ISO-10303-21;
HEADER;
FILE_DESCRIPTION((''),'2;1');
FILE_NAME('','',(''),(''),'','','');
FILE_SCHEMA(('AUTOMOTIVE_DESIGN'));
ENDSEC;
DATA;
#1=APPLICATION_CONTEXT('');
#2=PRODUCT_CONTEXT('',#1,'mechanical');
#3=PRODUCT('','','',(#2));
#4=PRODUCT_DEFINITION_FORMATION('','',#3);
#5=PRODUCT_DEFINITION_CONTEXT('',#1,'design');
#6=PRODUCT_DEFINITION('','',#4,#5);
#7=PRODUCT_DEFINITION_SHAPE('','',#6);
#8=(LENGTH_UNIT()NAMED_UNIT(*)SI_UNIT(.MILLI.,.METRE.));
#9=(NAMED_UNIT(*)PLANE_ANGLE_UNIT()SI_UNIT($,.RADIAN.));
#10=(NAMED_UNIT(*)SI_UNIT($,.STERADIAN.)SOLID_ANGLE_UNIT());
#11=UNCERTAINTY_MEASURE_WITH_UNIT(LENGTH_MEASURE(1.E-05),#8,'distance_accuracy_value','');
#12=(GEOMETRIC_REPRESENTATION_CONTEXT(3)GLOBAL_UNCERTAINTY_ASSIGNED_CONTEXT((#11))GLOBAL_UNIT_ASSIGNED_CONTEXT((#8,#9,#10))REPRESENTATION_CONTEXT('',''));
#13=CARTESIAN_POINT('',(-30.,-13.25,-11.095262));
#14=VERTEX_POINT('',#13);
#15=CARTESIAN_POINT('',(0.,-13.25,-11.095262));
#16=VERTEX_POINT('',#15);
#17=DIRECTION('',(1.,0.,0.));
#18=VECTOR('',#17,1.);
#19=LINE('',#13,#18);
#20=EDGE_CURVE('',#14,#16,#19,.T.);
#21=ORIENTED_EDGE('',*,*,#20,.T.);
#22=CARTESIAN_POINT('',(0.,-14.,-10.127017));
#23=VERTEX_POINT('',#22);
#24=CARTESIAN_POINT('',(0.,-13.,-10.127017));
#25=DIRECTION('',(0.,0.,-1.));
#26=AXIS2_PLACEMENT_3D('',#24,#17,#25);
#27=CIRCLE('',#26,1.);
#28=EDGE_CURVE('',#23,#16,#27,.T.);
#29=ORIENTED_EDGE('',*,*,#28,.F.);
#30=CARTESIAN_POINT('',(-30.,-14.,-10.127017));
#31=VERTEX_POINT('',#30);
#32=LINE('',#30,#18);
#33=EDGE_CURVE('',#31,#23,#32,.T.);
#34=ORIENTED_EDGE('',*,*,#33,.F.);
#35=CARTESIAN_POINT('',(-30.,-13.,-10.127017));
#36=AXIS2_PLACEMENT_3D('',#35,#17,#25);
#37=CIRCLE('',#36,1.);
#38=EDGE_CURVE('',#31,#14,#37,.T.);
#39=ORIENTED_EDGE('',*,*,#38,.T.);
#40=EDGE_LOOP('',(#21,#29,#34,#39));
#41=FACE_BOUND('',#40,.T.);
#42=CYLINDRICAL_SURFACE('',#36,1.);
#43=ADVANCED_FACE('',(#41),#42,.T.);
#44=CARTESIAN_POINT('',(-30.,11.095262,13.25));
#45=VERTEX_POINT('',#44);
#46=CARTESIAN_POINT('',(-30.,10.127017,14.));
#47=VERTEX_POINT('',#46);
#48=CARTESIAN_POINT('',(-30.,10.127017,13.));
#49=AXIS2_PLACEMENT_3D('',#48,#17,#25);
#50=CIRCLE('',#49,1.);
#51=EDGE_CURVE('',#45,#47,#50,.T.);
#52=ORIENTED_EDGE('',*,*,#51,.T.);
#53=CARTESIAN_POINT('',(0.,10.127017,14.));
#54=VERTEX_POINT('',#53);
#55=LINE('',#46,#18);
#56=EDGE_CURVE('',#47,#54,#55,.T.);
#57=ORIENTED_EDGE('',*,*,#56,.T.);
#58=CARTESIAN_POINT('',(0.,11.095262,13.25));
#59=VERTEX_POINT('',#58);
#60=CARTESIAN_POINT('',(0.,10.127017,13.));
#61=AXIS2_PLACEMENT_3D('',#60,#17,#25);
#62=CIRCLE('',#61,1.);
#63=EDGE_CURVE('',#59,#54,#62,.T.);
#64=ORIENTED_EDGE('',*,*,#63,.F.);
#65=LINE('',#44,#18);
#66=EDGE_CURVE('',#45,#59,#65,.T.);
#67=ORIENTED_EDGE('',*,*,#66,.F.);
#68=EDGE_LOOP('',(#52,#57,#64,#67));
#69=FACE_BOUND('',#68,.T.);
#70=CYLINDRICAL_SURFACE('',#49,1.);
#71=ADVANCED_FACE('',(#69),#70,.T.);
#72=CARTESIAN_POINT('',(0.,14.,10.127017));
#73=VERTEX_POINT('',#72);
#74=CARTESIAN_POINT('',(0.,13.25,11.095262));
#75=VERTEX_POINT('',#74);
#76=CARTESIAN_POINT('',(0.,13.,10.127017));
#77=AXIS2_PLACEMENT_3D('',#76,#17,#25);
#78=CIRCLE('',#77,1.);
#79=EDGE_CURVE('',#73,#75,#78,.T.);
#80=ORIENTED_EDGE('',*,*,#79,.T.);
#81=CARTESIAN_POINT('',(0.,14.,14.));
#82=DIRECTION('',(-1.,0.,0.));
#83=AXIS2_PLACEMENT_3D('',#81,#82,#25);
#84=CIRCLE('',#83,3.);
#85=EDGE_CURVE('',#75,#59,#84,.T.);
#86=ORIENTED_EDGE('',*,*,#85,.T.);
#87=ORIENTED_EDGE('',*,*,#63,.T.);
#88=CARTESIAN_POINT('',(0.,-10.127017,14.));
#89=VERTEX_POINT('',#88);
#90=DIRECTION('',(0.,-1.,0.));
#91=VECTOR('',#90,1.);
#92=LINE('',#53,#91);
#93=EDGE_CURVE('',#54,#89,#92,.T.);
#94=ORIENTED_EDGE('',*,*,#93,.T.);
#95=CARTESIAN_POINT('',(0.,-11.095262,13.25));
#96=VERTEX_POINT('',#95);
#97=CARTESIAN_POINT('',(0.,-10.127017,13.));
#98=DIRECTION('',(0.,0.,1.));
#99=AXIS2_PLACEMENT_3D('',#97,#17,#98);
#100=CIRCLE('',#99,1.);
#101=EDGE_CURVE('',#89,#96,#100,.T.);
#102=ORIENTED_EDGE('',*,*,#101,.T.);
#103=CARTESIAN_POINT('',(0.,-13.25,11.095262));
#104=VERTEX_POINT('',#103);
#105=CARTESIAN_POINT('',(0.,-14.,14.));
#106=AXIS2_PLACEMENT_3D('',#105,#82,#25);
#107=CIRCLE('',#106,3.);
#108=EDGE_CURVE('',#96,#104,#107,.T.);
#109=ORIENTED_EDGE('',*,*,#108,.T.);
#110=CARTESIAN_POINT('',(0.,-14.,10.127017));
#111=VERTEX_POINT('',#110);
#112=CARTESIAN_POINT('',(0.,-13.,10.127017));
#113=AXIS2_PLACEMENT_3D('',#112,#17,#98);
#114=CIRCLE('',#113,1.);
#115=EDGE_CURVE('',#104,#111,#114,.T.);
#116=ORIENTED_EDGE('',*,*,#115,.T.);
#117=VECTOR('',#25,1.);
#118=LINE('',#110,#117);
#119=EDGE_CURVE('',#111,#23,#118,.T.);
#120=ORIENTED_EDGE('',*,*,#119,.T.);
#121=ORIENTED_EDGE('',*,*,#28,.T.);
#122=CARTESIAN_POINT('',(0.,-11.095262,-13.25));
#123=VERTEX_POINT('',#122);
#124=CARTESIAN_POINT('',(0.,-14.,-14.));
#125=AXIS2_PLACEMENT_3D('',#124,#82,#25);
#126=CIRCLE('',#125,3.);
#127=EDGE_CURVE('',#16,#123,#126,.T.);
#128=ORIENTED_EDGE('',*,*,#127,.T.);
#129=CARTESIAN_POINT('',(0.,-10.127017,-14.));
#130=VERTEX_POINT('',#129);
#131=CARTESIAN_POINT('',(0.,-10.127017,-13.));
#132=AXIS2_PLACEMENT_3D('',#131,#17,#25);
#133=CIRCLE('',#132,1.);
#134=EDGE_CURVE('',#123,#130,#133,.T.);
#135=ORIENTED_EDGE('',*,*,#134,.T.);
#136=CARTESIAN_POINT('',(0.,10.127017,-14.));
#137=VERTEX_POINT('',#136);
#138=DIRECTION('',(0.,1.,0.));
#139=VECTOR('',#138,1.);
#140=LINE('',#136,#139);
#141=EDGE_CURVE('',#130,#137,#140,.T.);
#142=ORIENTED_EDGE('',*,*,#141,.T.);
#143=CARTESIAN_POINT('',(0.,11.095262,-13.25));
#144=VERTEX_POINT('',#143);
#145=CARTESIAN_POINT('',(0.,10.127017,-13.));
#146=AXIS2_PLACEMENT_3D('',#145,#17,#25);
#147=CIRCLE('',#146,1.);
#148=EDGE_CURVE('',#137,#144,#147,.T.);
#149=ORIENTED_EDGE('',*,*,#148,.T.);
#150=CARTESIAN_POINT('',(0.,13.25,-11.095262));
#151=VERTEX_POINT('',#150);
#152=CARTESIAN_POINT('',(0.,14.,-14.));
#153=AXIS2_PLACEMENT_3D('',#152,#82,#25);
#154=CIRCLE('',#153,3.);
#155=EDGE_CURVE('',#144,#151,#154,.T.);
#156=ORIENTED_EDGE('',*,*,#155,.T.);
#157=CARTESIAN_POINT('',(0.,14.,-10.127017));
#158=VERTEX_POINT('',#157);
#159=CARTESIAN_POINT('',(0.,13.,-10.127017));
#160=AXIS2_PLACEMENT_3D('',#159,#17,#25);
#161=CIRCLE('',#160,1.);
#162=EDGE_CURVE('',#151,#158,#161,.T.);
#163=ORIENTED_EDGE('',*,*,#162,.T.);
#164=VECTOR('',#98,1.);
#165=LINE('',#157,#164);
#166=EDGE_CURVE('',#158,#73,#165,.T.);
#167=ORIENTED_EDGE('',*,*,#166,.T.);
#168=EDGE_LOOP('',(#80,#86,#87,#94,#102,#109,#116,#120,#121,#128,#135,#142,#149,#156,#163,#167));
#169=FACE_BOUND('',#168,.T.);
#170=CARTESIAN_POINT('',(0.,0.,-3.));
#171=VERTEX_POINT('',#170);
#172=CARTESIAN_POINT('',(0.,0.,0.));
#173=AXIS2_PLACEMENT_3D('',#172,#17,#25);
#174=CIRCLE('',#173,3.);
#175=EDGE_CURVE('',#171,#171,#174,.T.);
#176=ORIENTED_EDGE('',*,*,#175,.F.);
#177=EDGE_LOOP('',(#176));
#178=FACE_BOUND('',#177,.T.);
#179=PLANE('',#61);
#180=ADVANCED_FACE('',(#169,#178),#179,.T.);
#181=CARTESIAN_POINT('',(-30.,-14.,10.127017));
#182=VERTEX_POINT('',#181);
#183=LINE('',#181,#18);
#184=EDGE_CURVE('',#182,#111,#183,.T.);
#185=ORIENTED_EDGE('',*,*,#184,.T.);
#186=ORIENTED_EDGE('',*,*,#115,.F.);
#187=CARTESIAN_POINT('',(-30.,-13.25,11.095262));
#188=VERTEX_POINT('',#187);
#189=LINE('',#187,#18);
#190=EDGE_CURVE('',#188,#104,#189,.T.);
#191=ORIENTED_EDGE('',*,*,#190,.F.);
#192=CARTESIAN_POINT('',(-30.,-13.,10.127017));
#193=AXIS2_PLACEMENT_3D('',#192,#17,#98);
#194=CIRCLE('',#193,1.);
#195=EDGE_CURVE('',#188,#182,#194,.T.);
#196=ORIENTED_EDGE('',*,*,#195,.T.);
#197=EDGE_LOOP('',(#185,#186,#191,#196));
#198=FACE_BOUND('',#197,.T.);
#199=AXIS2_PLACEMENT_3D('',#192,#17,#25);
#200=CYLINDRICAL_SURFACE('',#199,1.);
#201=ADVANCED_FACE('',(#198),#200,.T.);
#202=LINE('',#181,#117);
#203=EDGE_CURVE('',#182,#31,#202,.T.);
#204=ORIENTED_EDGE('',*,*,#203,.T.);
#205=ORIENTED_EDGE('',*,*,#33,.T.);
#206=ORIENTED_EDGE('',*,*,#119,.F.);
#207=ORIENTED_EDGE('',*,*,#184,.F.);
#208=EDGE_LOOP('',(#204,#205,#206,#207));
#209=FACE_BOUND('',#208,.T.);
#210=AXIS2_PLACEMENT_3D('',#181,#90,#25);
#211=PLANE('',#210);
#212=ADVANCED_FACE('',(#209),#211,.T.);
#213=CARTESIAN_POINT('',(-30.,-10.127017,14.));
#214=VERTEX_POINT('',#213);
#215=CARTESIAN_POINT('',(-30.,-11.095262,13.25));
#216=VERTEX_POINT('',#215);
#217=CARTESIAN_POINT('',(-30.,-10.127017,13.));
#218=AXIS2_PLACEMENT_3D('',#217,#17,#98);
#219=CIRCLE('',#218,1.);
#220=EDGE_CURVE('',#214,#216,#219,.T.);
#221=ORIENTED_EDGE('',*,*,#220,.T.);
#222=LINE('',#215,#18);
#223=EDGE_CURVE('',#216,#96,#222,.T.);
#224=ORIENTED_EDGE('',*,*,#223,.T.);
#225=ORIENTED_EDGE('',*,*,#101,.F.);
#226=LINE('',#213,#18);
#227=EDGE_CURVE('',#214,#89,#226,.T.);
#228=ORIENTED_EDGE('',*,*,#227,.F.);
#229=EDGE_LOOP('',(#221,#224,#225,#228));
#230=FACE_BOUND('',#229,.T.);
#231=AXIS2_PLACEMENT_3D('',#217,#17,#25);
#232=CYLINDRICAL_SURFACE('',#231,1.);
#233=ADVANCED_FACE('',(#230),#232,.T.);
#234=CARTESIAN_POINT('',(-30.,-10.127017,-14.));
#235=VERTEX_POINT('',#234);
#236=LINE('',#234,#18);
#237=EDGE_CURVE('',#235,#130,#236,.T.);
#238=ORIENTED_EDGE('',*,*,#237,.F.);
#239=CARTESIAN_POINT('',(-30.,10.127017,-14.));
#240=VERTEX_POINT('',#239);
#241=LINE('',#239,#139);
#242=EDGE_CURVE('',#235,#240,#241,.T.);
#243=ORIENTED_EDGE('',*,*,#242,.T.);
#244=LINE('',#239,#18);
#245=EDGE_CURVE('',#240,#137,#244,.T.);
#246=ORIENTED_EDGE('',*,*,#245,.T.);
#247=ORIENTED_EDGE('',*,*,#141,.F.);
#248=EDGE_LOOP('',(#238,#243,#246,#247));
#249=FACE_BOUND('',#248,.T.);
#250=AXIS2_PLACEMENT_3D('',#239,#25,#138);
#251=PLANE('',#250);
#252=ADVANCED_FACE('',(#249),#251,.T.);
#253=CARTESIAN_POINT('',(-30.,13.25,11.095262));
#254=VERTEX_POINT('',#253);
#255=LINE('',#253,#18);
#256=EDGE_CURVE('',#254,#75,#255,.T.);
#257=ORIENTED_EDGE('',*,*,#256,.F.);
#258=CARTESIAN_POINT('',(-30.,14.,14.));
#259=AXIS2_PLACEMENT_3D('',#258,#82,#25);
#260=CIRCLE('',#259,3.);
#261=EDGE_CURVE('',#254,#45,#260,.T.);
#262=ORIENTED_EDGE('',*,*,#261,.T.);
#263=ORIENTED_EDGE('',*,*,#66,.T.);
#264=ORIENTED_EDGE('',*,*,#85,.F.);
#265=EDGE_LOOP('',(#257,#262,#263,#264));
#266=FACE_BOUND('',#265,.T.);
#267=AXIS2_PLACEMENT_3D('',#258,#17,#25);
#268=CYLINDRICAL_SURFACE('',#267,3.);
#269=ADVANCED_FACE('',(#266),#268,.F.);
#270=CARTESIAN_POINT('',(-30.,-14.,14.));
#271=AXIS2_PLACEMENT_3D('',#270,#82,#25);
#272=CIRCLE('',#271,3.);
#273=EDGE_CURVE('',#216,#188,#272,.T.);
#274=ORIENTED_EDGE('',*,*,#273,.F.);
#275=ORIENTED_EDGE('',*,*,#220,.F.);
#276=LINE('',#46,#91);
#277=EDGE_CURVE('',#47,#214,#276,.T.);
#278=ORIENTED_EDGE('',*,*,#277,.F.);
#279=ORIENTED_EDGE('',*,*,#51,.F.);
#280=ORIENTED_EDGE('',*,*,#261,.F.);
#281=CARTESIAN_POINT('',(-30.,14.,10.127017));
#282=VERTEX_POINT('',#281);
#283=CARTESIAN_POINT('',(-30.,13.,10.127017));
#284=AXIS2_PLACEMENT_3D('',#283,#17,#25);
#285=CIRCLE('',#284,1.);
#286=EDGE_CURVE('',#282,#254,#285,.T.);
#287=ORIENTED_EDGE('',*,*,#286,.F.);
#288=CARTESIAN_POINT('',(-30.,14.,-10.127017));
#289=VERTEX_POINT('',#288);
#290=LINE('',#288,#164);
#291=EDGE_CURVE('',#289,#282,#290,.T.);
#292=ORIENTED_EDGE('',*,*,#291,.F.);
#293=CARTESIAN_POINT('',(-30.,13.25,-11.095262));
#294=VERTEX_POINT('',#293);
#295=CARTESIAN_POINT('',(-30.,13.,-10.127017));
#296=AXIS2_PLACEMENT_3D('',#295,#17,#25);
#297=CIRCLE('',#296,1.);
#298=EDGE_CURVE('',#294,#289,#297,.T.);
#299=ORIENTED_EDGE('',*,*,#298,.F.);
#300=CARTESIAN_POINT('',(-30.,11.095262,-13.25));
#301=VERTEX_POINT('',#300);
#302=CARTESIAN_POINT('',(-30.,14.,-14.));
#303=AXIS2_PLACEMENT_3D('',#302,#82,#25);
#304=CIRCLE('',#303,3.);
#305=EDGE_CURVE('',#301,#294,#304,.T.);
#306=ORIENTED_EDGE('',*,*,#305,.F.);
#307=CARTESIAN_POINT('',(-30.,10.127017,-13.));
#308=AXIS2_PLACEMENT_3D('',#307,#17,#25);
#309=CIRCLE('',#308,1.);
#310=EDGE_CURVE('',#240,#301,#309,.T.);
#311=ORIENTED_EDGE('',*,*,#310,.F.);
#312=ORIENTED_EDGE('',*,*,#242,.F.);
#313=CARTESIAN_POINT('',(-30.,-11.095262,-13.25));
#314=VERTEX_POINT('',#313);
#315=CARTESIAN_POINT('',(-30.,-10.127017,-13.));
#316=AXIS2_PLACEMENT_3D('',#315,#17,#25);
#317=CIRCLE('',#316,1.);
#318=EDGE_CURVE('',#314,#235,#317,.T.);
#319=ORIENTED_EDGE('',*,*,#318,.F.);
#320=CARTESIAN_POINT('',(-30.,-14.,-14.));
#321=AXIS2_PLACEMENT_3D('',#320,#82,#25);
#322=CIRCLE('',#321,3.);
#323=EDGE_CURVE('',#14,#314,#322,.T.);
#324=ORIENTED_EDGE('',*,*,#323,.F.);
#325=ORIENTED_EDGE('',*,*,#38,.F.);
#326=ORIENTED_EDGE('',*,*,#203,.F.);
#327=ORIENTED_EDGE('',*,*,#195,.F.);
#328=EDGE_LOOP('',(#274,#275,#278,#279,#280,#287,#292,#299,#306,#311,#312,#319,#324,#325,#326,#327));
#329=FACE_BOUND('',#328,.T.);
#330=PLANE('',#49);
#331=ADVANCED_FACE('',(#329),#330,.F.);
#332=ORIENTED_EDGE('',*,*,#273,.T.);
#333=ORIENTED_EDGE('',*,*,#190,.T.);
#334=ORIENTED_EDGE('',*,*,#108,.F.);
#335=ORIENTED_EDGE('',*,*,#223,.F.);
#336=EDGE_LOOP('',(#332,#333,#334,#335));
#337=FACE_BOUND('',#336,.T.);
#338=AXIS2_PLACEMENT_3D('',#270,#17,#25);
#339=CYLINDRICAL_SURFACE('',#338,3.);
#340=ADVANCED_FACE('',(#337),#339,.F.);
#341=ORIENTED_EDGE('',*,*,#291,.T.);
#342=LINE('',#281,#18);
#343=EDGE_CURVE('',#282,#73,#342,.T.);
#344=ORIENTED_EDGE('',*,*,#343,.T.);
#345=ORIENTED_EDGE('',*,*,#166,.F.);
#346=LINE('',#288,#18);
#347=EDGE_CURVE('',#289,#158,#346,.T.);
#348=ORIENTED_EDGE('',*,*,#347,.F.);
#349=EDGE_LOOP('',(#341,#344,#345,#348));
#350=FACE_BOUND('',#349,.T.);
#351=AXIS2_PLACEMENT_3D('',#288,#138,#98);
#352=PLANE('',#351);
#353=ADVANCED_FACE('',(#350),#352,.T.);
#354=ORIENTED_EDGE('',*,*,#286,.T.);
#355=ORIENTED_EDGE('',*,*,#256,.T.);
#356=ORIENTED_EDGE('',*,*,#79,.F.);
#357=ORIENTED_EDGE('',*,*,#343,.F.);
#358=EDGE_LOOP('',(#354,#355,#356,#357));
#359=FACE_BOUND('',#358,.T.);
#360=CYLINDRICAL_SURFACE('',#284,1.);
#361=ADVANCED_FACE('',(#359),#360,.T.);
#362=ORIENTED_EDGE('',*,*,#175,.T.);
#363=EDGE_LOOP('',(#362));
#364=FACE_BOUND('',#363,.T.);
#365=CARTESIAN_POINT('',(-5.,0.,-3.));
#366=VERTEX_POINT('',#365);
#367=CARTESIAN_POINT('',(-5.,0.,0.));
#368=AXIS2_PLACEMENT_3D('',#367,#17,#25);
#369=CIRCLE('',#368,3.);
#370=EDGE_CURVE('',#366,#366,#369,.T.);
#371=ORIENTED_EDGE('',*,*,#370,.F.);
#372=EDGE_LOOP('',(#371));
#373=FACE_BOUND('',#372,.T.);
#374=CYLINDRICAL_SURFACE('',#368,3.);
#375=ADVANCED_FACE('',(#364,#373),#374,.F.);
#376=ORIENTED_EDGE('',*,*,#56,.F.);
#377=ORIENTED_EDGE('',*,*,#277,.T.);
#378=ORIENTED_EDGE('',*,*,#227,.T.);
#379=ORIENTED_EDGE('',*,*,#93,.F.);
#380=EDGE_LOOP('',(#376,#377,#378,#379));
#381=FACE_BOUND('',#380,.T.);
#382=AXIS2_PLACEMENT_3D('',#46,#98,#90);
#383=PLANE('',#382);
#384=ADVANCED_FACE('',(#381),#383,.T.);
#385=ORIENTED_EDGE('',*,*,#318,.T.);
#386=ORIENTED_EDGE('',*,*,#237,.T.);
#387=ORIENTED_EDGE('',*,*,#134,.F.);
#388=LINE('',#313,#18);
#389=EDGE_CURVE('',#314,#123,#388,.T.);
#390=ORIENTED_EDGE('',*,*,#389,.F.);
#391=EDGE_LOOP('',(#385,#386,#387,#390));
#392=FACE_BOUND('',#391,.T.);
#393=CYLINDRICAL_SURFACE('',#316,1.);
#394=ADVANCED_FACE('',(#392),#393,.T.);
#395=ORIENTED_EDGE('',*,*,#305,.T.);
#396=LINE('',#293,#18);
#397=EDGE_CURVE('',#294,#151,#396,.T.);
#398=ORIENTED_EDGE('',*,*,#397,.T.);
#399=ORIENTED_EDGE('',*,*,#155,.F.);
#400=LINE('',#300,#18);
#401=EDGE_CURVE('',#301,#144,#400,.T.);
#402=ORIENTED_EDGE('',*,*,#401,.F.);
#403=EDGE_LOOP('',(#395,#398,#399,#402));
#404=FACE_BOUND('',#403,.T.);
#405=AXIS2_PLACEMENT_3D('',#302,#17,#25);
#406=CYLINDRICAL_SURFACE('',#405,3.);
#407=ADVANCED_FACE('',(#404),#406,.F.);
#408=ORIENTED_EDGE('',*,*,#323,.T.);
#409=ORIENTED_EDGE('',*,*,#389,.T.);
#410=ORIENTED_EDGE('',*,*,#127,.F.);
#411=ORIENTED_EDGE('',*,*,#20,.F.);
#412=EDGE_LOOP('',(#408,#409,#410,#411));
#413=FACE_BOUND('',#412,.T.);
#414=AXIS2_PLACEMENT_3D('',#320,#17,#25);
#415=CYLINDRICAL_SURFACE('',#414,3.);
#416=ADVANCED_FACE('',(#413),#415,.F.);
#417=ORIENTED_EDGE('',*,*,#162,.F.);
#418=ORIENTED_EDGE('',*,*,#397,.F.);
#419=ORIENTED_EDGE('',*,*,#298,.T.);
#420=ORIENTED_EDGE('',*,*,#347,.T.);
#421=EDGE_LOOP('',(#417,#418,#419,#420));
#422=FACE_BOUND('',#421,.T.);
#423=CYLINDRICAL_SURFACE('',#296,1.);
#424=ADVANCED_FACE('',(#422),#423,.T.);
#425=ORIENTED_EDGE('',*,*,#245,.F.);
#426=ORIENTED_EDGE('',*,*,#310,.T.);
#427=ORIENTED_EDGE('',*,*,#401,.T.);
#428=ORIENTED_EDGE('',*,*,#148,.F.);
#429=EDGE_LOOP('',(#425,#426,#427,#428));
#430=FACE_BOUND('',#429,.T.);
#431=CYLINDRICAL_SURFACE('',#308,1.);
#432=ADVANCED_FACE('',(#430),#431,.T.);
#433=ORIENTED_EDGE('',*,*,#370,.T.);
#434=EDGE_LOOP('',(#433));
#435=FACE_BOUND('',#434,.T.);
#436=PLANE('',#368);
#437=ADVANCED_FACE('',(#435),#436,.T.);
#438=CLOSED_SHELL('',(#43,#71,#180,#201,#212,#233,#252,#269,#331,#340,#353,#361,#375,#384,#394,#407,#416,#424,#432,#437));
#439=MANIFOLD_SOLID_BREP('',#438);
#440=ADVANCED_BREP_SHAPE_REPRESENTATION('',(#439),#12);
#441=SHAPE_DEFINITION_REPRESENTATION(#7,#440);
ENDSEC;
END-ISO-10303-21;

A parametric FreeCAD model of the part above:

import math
import FreeCAD as App
import Part
import Sketcher
from FreeCAD import Vector
Q = App.Units.Quantity

doc = App.newDocument("Part")
params = doc.addObject("Spreadsheet::Sheet", "Params")
for row, (alias, value) in enumerate([
    ("sketch1_radius", "1 mm"),
    ("sketch1_radius2", "3 mm"),
    ("pad1_length", "30 mm"),
    ("sketch2_diameter", "6 mm"),
    ("pocket1_length", "5 mm"),
], start=1):
    params.set(f"A{row}", alias)
    params.set(f"B{row}", "=" + value)
    params.setAlias(f"B{row}", alias)

body = doc.addObject("PartDesign::Body", "Body")

# Sketch on YZ plane
sketch1 = body.newObject("Sketcher::SketchObject", "Sketch")
sketch1.AttachmentSupport = (doc.getObject("YZ_Plane"), [""])
sketch1.MapMode = "FlatFace"
sketch1.addGeometry([
    Part.LineSegment(Vector(10.1, 14, 0), Vector(-10.1, 14, 0)),  # 0
    Part.ArcOfCircle(Part.Circle(Vector(-10.1, 13, 0), Vector(0, 0, 1), 1), math.radians(90), math.radians(166)),  # 1
    Part.ArcOfCircle(Part.Circle(Vector(-14, 14, 0), Vector(0, 0, 1), 3), math.radians(-76), math.radians(-14)),  # 2
    Part.ArcOfCircle(Part.Circle(Vector(-13, 10.1, 0), Vector(0, 0, 1), 1), math.radians(104), math.radians(180)),  # 3
    Part.LineSegment(Vector(-14, 10.1, 0), Vector(-14, -10.1, 0)),  # 4
    Part.ArcOfCircle(Part.Circle(Vector(-13, -10.1, 0), Vector(0, 0, 1), 1), math.radians(-180), math.radians(-104)),  # 5
    Part.ArcOfCircle(Part.Circle(Vector(-14, -14, 0), Vector(0, 0, 1), 3), math.radians(14), math.radians(76)),  # 6
    Part.ArcOfCircle(Part.Circle(Vector(-10.1, -13, 0), Vector(0, 0, 1), 1), math.radians(-166), math.radians(-90)),  # 7
    Part.LineSegment(Vector(-10.1, -14, 0), Vector(10.1, -14, 0)),  # 8
    Part.ArcOfCircle(Part.Circle(Vector(10.1, -13, 0), Vector(0, 0, 1), 1), math.radians(-90), math.radians(-14)),  # 9
    Part.ArcOfCircle(Part.Circle(Vector(14, -14, 0), Vector(0, 0, 1), 3), math.radians(104), math.radians(166)),  # 10
    Part.ArcOfCircle(Part.Circle(Vector(13, -10.1, 0), Vector(0, 0, 1), 1), math.radians(-76), math.radians(0)),  # 11
    Part.LineSegment(Vector(14, -10.1, 0), Vector(14, 10.1, 0)),  # 12
    Part.ArcOfCircle(Part.Circle(Vector(13, 10.1, 0), Vector(0, 0, 1), 1), math.radians(0), math.radians(76)),  # 13
    Part.ArcOfCircle(Part.Circle(Vector(14, 14, 0), Vector(0, 0, 1), 3), math.radians(-166), math.radians(-104)),  # 14
    Part.ArcOfCircle(Part.Circle(Vector(10.1, 13, 0), Vector(0, 0, 1), 1), math.radians(14), math.radians(90)),  # 15
], False)
sketch1.addConstraint([
    Sketcher.Constraint("Tangent", 0, 2, 1, 1),
    Sketcher.Constraint("Tangent", 1, 2, 2, 2),
    Sketcher.Constraint("Tangent", 2, 1, 3, 1),
    Sketcher.Constraint("Tangent", 3, 2, 4, 1),
    Sketcher.Constraint("Tangent", 4, 2, 5, 1),
    Sketcher.Constraint("Tangent", 5, 2, 6, 2),
    Sketcher.Constraint("Tangent", 6, 1, 7, 1),
    Sketcher.Constraint("Tangent", 7, 2, 8, 1),
    Sketcher.Constraint("Tangent", 8, 2, 9, 1),
    Sketcher.Constraint("Tangent", 9, 2, 10, 2),
    Sketcher.Constraint("Tangent", 10, 1, 11, 1),
    Sketcher.Constraint("Tangent", 11, 2, 12, 1),
    Sketcher.Constraint("Tangent", 12, 2, 13, 1),
    Sketcher.Constraint("Tangent", 13, 2, 14, 2),
    Sketcher.Constraint("Tangent", 14, 1, 15, 1),
    Sketcher.Constraint("Tangent", 15, 2, 0, 1),
    Sketcher.Constraint("Horizontal", 0),
    Sketcher.Constraint("Vertical", 4),
    Sketcher.Constraint("Horizontal", 8),
    Sketcher.Constraint("Vertical", 12),
    Sketcher.Constraint("Equal", 1, 3),
    Sketcher.Constraint("Equal", 3, 5),
    Sketcher.Constraint("Equal", 2, 6),
    Sketcher.Constraint("Equal", 5, 7),
    Sketcher.Constraint("Equal", 7, 9),
    Sketcher.Constraint("Equal", 6, 10),
    Sketcher.Constraint("Equal", 9, 11),
    Sketcher.Constraint("Equal", 11, 13),
    Sketcher.Constraint("Equal", 10, 14),
    Sketcher.Constraint("Equal", 13, 15),
    Sketcher.Constraint("Symmetric", 1, 3, 9, 3, -1, 1),
    Sketcher.Constraint("Symmetric", 3, 3, 11, 3, -1, 1),
    Sketcher.Constraint("Symmetric", 6, 3, 14, 3, -1, 1),
    Sketcher.Constraint("Symmetric", 6, 3, 10, 3, -2),
    Sketcher.Constraint("Horizontal", 14, 3, 0, 2),
    Sketcher.Constraint("Vertical", 6, 3, 3, 2),
    Sketcher.Constraint("Equal", 8, 4),
    Sketcher.Constraint("Radius", 1, Q("1 mm")),
    Sketcher.Constraint("Radius", 2, Q("3 mm")),
    Sketcher.Constraint("DistanceY", -1, 1, 1, 3, Q("13 mm")),
])
sketch1.setExpression("Constraints[37]", "Params.sketch1_radius")
sketch1.setExpression("Constraints[38]", "Params.sketch1_radius2")
pad1 = body.newObject("PartDesign::Pad", "Pad")
pad1.Profile = sketch1
pad1.setExpression("Length", "Params.pad1_length")
pad1.Reversed = True

# Sketch on YZ plane
sketch2 = body.newObject("Sketcher::SketchObject", "Sketch001")
sketch2.AttachmentSupport = (doc.getObject("YZ_Plane"), [""])
sketch2.MapMode = "FlatFace"
sketch2.addGeometry(Part.Circle(Vector(0, 0, 0), Vector(0, 0, 1), 3), False)
sketch2.addConstraint([
    Sketcher.Constraint("Coincident", 0, 3, -1, 1),
    Sketcher.Constraint("Diameter", 0, Q("6 mm")),
])
sketch2.setExpression("Constraints[1]", "Params.sketch2_diameter")
pocket1 = body.newObject("PartDesign::Pocket", "Pocket")
pocket1.Profile = sketch2
pocket1.setExpression("Length", "Params.pocket1_length")

doc.recompute()
